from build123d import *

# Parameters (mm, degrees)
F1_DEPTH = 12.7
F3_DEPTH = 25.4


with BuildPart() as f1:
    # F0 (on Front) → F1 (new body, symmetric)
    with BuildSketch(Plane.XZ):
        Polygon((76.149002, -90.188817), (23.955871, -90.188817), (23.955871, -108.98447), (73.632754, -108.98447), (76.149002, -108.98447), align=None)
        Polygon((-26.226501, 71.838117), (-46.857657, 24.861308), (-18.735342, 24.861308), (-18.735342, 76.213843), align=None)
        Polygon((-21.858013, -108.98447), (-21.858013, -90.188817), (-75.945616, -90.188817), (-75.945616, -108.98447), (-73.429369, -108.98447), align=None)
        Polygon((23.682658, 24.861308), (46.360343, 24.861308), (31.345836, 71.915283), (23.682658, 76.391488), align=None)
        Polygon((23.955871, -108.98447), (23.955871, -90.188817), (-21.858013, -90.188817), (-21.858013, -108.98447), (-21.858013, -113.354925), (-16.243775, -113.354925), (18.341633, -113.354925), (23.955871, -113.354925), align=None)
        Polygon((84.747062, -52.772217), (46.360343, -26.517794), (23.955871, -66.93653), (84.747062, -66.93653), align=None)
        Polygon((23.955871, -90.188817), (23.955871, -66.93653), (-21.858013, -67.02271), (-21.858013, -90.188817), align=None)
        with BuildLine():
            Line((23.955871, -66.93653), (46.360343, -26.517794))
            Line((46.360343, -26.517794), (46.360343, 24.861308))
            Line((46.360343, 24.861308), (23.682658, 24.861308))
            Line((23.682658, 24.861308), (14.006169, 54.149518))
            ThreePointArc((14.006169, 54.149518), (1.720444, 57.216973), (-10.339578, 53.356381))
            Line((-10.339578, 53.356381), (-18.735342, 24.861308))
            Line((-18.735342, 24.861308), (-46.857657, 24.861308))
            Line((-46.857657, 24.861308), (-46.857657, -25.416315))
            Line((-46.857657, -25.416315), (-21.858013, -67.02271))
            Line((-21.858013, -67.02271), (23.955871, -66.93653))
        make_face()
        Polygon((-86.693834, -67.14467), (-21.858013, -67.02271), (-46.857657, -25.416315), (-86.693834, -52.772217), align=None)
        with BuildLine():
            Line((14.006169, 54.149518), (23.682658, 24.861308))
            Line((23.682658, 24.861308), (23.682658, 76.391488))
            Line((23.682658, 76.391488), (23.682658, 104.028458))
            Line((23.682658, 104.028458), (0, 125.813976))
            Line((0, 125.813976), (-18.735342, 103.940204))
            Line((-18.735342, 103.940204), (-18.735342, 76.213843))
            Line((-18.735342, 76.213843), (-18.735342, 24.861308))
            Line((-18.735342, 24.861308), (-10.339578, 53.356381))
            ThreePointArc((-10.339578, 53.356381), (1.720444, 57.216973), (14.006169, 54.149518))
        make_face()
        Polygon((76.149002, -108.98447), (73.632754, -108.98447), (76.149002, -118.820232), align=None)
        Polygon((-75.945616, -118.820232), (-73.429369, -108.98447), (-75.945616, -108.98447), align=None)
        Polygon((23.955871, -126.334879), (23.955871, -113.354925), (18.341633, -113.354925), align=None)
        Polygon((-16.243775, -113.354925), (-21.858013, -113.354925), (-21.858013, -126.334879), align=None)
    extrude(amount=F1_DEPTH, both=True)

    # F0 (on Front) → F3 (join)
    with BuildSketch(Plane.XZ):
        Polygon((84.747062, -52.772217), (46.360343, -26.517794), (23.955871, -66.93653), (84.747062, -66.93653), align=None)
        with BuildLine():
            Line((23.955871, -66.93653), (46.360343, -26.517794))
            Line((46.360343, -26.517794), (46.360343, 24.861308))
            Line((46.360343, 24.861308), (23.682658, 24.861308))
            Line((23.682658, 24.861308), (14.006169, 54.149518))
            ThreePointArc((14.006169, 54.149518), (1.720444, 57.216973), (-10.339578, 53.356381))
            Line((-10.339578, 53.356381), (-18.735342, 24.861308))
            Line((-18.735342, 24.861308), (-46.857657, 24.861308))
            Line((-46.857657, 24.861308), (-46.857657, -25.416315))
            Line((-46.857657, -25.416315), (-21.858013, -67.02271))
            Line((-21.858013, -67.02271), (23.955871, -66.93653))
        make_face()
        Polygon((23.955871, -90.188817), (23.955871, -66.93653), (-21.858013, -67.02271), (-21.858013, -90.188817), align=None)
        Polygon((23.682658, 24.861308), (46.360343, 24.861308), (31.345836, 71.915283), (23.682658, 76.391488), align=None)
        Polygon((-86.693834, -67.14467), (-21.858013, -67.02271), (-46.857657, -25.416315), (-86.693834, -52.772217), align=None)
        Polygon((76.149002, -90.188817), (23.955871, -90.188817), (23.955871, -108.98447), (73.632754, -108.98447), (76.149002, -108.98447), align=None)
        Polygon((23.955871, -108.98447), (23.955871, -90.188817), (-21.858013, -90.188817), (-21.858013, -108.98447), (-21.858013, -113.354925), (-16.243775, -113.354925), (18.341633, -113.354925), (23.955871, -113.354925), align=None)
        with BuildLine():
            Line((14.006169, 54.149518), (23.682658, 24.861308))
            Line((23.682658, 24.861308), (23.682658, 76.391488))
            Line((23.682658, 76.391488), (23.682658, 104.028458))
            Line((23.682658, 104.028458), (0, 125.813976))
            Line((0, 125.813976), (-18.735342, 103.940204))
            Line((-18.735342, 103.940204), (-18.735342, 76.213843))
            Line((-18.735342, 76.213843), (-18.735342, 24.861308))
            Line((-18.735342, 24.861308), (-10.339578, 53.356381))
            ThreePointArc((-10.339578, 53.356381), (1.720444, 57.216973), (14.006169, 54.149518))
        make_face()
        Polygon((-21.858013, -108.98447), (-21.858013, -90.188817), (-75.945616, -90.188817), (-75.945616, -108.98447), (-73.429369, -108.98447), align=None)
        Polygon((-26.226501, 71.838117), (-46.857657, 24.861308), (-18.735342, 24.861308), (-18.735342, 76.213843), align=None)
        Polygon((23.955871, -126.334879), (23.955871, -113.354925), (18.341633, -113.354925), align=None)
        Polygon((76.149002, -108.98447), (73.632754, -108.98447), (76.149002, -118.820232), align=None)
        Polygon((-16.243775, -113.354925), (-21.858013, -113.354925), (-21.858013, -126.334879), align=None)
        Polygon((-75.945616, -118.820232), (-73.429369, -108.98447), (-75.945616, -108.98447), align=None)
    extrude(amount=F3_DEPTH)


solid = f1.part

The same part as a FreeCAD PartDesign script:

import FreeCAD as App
import Part
import Sketcher
Q = App.Units.Quantity

doc = App.newDocument("Part")
params = doc.addObject("Spreadsheet::Sheet", "Params")
for row, (alias, value) in enumerate([
    ("pad1_length", "1 in"),
    ("pad2_length", "1 in"),
], start=1):
    params.set(f"A{row}", alias)
    params.set(f"B{row}", "=" + value)
    params.setAlias(f"B{row}", alias)

body = doc.addObject("PartDesign::Body", "Body")

sketch1 = body.newObject("Sketcher::SketchObject", "Sketch")
sketch1.AttachmentSupport = (doc.getObject("XZ_Plane"), [""])
sketch1.MapMode = "FlatFace"
sketch1.addGeometry(Part.LineSegment(App.Vector(76, -90, 0), App.Vector(24, -90, 0)), False)
sketch1.addGeometry(Part.LineSegment(App.Vector(24, -90, 0), App.Vector(24, -67, 0)), False)
sketch1.addGeometry(Part.LineSegment(App.Vector(24, -67, 0), App.Vector(85, -67, 0)), False)
sketch1.addGeometry(Part.LineSegment(App.Vector(85, -67, 0), App.Vector(85, -53, 0)), False)
sketch1.addGeometry(Part.LineSegment(App.Vector(85, -53, 0), App.Vector(46, -27, 0)), False)
sketch1.addGeometry(Part.LineSegment(App.Vector(46, -27, 0), App.Vector(46, 25, 0)), False)
sketch1.addGeometry(Part.LineSegment(App.Vector(46, 25, 0), App.Vector(31, 72, 0)), False)
sketch1.addGeometry(Part.LineSegment(App.Vector(31, 72, 0), App.Vector(24, 76, 0)), False)
sketch1.addGeometry(Part.LineSegment(App.Vector(24, 76, 0), App.Vector(24, 104, 0)), False)
sketch1.addGeometry(Part.LineSegment(App.Vector(24, 104, 0), App.Vector(0, 126, 0)), False)
sketch1.addGeometry(Part.LineSegment(App.Vector(0, 126, 0), App.Vector(-19, 104, 0)), False)
sketch1.addGeometry(Part.LineSegment(App.Vector(-19, 104, 0), App.Vector(-19, 76, 0)), False)
sketch1.addGeometry(Part.LineSegment(App.Vector(-19, 76, 0), App.Vector(-26, 72, 0)), False)
sketch1.addGeometry(Part.LineSegment(App.Vector(-26, 72, 0), App.Vector(-47, 25, 0)), False)
sketch1.addGeometry(Part.LineSegment(App.Vector(-47, 25, 0), App.Vector(-47, -25, 0)), False)
sketch1.addGeometry(Part.LineSegment(App.Vector(-47, -25, 0), App.Vector(-87, -53, 0)), False)
sketch1.addGeometry(Part.LineSegment(App.Vector(-87, -53, 0), App.Vector(-87, -67, 0)), False)
sketch1.addGeometry(Part.LineSegment(App.Vector(-87, -67, 0), App.Vector(-22, -67, 0)), False)
sketch1.addGeometry(Part.LineSegment(App.Vector(-22, -67, 0), App.Vector(-22, -90, 0)), False)
sketch1.addGeometry(Part.LineSegment(App.Vector(-22, -90, 0), App.Vector(-76, -90, 0)), False)
sketch1.addGeometry(Part.LineSegment(App.Vector(-76, -90, 0), App.Vector(-76, -119, 0)), False)
sketch1.addGeometry(Part.LineSegment(App.Vector(-76, -119, 0), App.Vector(-73, -109, 0)), False)
sketch1.addGeometry(Part.LineSegment(App.Vector(-73, -109, 0), App.Vector(-22, -109, 0)), False)
sketch1.addGeometry(Part.LineSegment(App.Vector(-22, -109, 0), App.Vector(-22, -126, 0)), False)
sketch1.addGeometry(Part.LineSegment(App.Vector(-22, -126, 0), App.Vector(-16, -113, 0)), False)
sketch1.addGeometry(Part.LineSegment(App.Vector(-16, -113, 0), App.Vector(18, -113, 0)), False)
sketch1.addGeometry(Part.LineSegment(App.Vector(18, -113, 0), App.Vector(24, -126, 0)), False)
sketch1.addGeometry(Part.LineSegment(App.Vector(24, -126, 0), App.Vector(24, -109, 0)), False)
sketch1.addGeometry(Part.LineSegment(App.Vector(24, -109, 0), App.Vector(74, -109, 0)), False)
sketch1.addGeometry(Part.LineSegment(App.Vector(74, -109, 0), App.Vector(76, -119, 0)), False)
sketch1.addGeometry(Part.LineSegment(App.Vector(76, -119, 0), App.Vector(76, -90, 0)), False)
sketch1.addConstraint(Sketcher.Constraint("Coincident", 0, 2, 1, 1))
sketch1.addConstraint(Sketcher.Constraint("Coincident", 1, 2, 2, 1))
sketch1.addConstraint(Sketcher.Constraint("Coincident", 2, 2, 3, 1))
sketch1.addConstraint(Sketcher.Constraint("Coincident", 3, 2, 4, 1))
sketch1.addConstraint(Sketcher.Constraint("Coincident", 4, 2, 5, 1))
sketch1.addConstraint(Sketcher.Constraint("Coincident", 5, 2, 6, 1))
sketch1.addConstraint(Sketcher.Constraint("Coincident", 6, 2, 7, 1))
sketch1.addConstraint(Sketcher.Constraint("Coincident", 7, 2, 8, 1))
sketch1.addConstraint(Sketcher.Constraint("Coincident", 8, 2, 9, 1))
sketch1.addConstraint(Sketcher.Constraint("Coincident", 9, 2, 10, 1))
sketch1.addConstraint(Sketcher.Constraint("Coincident", 10, 2, 11, 1))
sketch1.addConstraint(Sketcher.Constraint("Coincident", 11, 2, 12, 1))
sketch1.addConstraint(Sketcher.Constraint("Coincident", 12, 2, 13, 1))
sketch1.addConstraint(Sketcher.Constraint("Coincident", 13, 2, 14, 1))
sketch1.addConstraint(Sketcher.Constraint("Coincident", 14, 2, 15, 1))
sketch1.addConstraint(Sketcher.Constraint("Coincident", 15, 2, 16, 1))
sketch1.addConstraint(Sketcher.Constraint("Coincident", 16, 2, 17, 1))
sketch1.addConstraint(Sketcher.Constraint("Coincident", 17, 2, 18, 1))
sketch1.addConstraint(Sketcher.Constraint("Coincident", 18, 2, 19, 1))
sketch1.addConstraint(Sketcher.Constraint("Coincident", 19, 2, 20, 1))
sketch1.addConstraint(Sketcher.Constraint("Coincident", 20, 2, 21, 1))
sketch1.addConstraint(Sketcher.Constraint("Coincident", 21, 2, 22, 1))
sketch1.addConstraint(Sketcher.Constraint("Coincident", 22, 2, 23, 1))
sketch1.addConstraint(Sketcher.Constraint("Coincident", 23, 2, 24, 1))
sketch1.addConstraint(Sketcher.Constraint("Coincident", 24, 2, 25, 1))
sketch1.addConstraint(Sketcher.Constraint("Coincident", 25, 2, 26, 1))
sketch1.addConstraint(Sketcher.Constraint("Coincident", 26, 2, 27, 1))
sketch1.addConstraint(Sketcher.Constraint("Coincident", 27, 2, 28, 1))
sketch1.addConstraint(Sketcher.Constraint("Coincident", 28, 2, 29, 1))
sketch1.addConstraint(Sketcher.Constraint("Coincident", 29, 2, 30, 1))
sketch1.addConstraint(Sketcher.Constraint("Coincident", 30, 2, 0, 1))
sketch1.addConstraint(Sketcher.Constraint("Horizontal", 0))
sketch1.addConstraint(Sketcher.Constraint("Vertical", 1))
sketch1.addConstraint(Sketcher.Constraint("Horizontal", 2))
sketch1.addConstraint(Sketcher.Constraint("Vertical", 3))
sketch1.addConstraint(Sketcher.Constraint("Vertical", 5))
sketch1.addConstraint(Sketcher.Constraint("Vertical", 8))
sketch1.addConstraint(Sketcher.Constraint("Vertical", 11))
sketch1.addConstraint(Sketcher.Constraint("Vertical", 14))
sketch1.addConstraint(Sketcher.Constraint("Vertical", 16))
sketch1.addConstraint(Sketcher.Constraint("Vertical", 18))
sketch1.addConstraint(Sketcher.Constraint("Horizontal", 19))
sketch1.addConstraint(Sketcher.Constraint("Vertical", 20))
sketch1.addConstraint(Sketcher.Constraint("Horizontal", 22))
sketch1.addConstraint(Sketcher.Constraint("Vertical", 23))
sketch1.addConstraint(Sketcher.Constraint("Horizontal", 25))
sketch1.addConstraint(Sketcher.Constraint("Vertical", 27))
sketch1.addConstraint(Sketcher.Constraint("Horizontal", 28))
sketch1.addConstraint(Sketcher.Constraint("Vertical", 30))
sketch1.addConstraint(Sketcher.Constraint("PointOnObject", 9, 2, -2))
sketch1.addConstraint(Sketcher.Constraint("Horizontal", 5, 2, 13, 2))
sketch1.addConstraint(Sketcher.Constraint("Horizontal", 3, 2, 15, 2))
sketch1.addConstraint(Sketcher.Constraint("Horizontal", 0, 2, 18, 2))
sketch1.addConstraint(Sketcher.Constraint("Horizontal", 23, 2, 26, 2))
sketch1.addConstraint(Sketcher.Constraint("Horizontal", 22, 2, 27, 2))
sketch1.addConstraint(Sketcher.Constraint("Horizontal", 20, 2, 29, 2))
sketch1.addConstraint(Sketcher.Constraint("Vertical", 18, 2, 22, 2))
sketch1.addConstraint(Sketcher.Constraint("Vertical", 1, 2, 26, 2))
sketch1.addConstraint(Sketcher.Constraint("Equal", 24, 26))
sketch1.addConstraint(Sketcher.Constraint("Equal", 21, 29))
sketch1.addConstraint(Sketcher.Constraint("Angle", 4, Q("145.63 deg")))
sketch1.addConstraint(Sketcher.Constraint("Angle", 7, Q("149.710004 deg")))
sketch1.addConstraint(Sketcher.Constraint("Angle", 12, Q("-149.710001 deg")))
sketch1.addConstraint(Sketcher.Constraint("Angle", 13, Q("-113.709999 deg")))
sketch1.addConstraint(Sketcher.Constraint("Angle", 21, Q("75.650002 deg")))
sketch1.addConstraint(Sketcher.Constraint("Angle", 24, Q("66.610001 deg")))
sketch1.addConstraint(Sketcher.Constraint("DistanceX", 10, 2, 8, 2, Q("1.67 in")))
sketch1.addConstraint(Sketcher.Constraint("DistanceX", 14, 2, 4, 2, Q("3.67 in")))
sketch1.addConstraint(Sketcher.Constraint("DistanceX", 7, 2, 6, 2, Q("0.3016999 in")))
sketch1.addConstraint(Sketcher.Constraint("DistanceX", 0, 2, 0, 1, 52.193131))
sketch1.addConstraint(Sketcher.Constraint("DistanceX", 2, 1, 2, 2, 60.791191))
sketch1.addConstraint(Sketcher.Constraint("DistanceY", 8, 1, 8, 2, 27.63697))
sketch1.addConstraint(Sketcher.Constraint("DistanceY", 11, 2, 11, 1, 27.726361))
sketch1.addConstraint(Sketcher.Constraint("DistanceY", 23, 2, 23, 1, 17.350409))
sketch1.addConstraint(Sketcher.Constraint("DistanceX", 12, 2, -1, 1, 26.226501))
sketch1.addConstraint(Sketcher.Constraint("DistanceX", -1, 1, 29, 2, 76.149002))
sketch1.addConstraint(Sketcher.Constraint("DistanceY", 0, 2, 3, 2, 37.4166))
sketch1.addConstraint(Sketcher.Constraint("DistanceY", 3, 2, 6, 2, 124.6875))
sketch1.addConstraint(Sketcher.Constraint("DistanceY", 15, 2, 14, 2, 27.355902))
sketch1.addConstraint(Sketcher.Constraint("DistanceY", 21, 2, 16, 2, 41.8398))
sketch1.addConstraint(Sketcher.Constraint("Distance", 4, 46.506289))
sketch1.addConstraint(Sketcher.Constraint("Distance", 9, 32.17883))
sketch1.addConstraint(Sketcher.Constraint("Distance", 12, 8.675508))
sketch1.addConstraint(Sketcher.Constraint("DistanceX", 19, 2, 19, 1, 54.087603))
sketch1.addConstraint(Sketcher.Constraint("DistanceX", 22, 1, 22, 2, 51.571356))
sketch1.addConstraint(Sketcher.Constraint("DistanceX", 25, 1, 25, 2, 34.585408))
sketch1.addConstraint(Sketcher.Constraint("DistanceY", 1, 1, 1, 2, 23.252287))
sketch1.addConstraint(Sketcher.Constraint("DistanceY", 5, 1, 5, 2, 51.379102))
sketch1.addConstraint(Sketcher.Constraint("DistanceY", 16, 2, 16, 1, 14.372453))
sketch1.addConstraint(Sketcher.Constraint("DistanceY", 18, 2, 18, 1, 23.166107))
sketch1.addConstraint(Sketcher.Constraint("DistanceY", 1, 2, -1, 1, 66.93653))
sketch1.addConstraint(Sketcher.Constraint("DistanceX", 21, 2, -1, 1, 73.429369))
sketch1.addConstraint(Sketcher.Constraint("DistanceX", 16, 2, 17, 2, 64.835821))
pad1 = body.newObject("PartDesign::Pad", "Pad")
pad1.Profile = sketch1
pad1.setExpression("Length", "Params.pad1_length")
pad1.Midplane = True

sketch2 = body.newObject("Sketcher::SketchObject", "Sketch001")
sketch2.AttachmentSupport = (doc.getObject("XZ_Plane"), [""])
sketch2.MapMode = "FlatFace"
sketch2.addGeometry(Part.LineSegment(App.Vector(85, -53, 0), App.Vector(46, -27, 0)), False)
sketch2.addGeometry(Part.LineSegment(App.Vector(46, -27, 0), App.Vector(46, 25, 0)), False)
sketch2.addGeometry(Part.LineSegment(App.Vector(46, 25, 0), App.Vector(31, 72, 0)), False)
sketch2.addGeometry(Part.LineSegment(App.Vector(31, 72, 0), App.Vector(24, 76, 0)), False)
sketch2.addGeometry(Part.LineSegment(App.Vector(24, 76, 0), App.Vector(24, 104, 0)), False)
sketch2.addGeometry(Part.LineSegment(App.Vector(24, 104, 0), App.Vector(0, 126, 0)), False)
sketch2.addGeometry(Part.LineSegment(App.Vector(0, 126, 0), App.Vector(-19, 104, 0)), False)
sketch2.addGeometry(Part.LineSegment(App.Vector(-19, 104, 0), App.Vector(-19, 76, 0)), False)
sketch2.addGeometry(Part.LineSegment(App.Vector(-19, 76, 0), App.Vector(-26, 72, 0)), False)
sketch2.addGeometry(Part.LineSegment(App.Vector(-26, 72, 0), App.Vector(-47, 25, 0)), False)
sketch2.addGeometry(Part.LineSegment(App.Vector(-47, 25, 0), App.Vector(-47, -25, 0)), False)
sketch2.addGeometry(Part.LineSegment(App.Vector(-47, -25, 0), App.Vector(-87, -53, 0)), False)
sketch2.addGeometry(Part.LineSegment(App.Vector(-87, -53, 0), App.Vector(-87, -67, 0)), False)
sketch2.addGeometry(Part.LineSegment(App.Vector(-87, -67, 0), App.Vector(-22, -67, 0)), False)
sketch2.addGeometry(Part.LineSegment(App.Vector(-22, -67, 0), App.Vector(-22, -90, 0)), False)
sketch2.addGeometry(Part.LineSegment(App.Vector(-22, -90, 0), App.Vector(-76, -90, 0)), False)
sketch2.addGeometry(Part.LineSegment(App.Vector(-76, -90, 0), App.Vector(-76, -119, 0)), False)
sketch2.addGeometry(Part.LineSegment(App.Vector(-76, -119, 0), App.Vector(-73, -109, 0)), False)
sketch2.addGeometry(Part.LineSegment(App.Vector(-73, -109, 0), App.Vector(-22, -109, 0)), False)
sketch2.addGeometry(Part.LineSegment(App.Vector(-22, -109, 0), App.Vector(-22, -126, 0)), False)
sketch2.addGeometry(Part.LineSegment(App.Vector(-22, -126, 0), App.Vector(-16, -113, 0)), False)
sketch2.addGeometry(Part.LineSegment(App.Vector(-16, -113, 0), App.Vector(18, -113, 0)), False)
sketch2.addGeometry(Part.LineSegment(App.Vector(18, -113, 0), App.Vector(24, -126, 0)), False)
sketch2.addGeometry(Part.LineSegment(App.Vector(24, -126, 0), App.Vector(24, -109, 0)), False)
sketch2.addGeometry(Part.LineSegment(App.Vector(24, -109, 0), App.Vector(74, -109, 0)), False)
sketch2.addGeometry(Part.LineSegment(App.Vector(74, -109, 0), App.Vector(76, -119, 0)), False)
sketch2.addGeometry(Part.LineSegment(App.Vector(76, -119, 0), App.Vector(76, -90, 0)), False)
sketch2.addGeometry(Part.LineSegment(App.Vector(76, -90, 0), App.Vector(24, -90, 0)), False)
sketch2.addGeometry(Part.LineSegment(App.Vector(24, -90, 0), App.Vector(24, -67, 0)), False)
sketch2.addGeometry(Part.LineSegment(App.Vector(24, -67, 0), App.Vector(85, -67, 0)), False)
sketch2.addGeometry(Part.LineSegment(App.Vector(85, -67, 0), App.Vector(85, -53, 0)), False)
sketch2.addConstraint(Sketcher.Constraint("Coincident", 0, 2, 1, 1))
sketch2.addConstraint(Sketcher.Constraint("Coincident", 1, 2, 2, 1))
sketch2.addConstraint(Sketcher.Constraint("Coincident", 2, 2, 3, 1))
sketch2.addConstraint(Sketcher.Constraint("Coincident", 3, 2, 4, 1))
sketch2.addConstraint(Sketcher.Constraint("Coincident", 4, 2, 5, 1))
sketch2.addConstraint(Sketcher.Constraint("Coincident", 5, 2, 6, 1))
sketch2.addConstraint(Sketcher.Constraint("Coincident", 6, 2, 7, 1))
sketch2.addConstraint(Sketcher.Constraint("Coincident", 7, 2, 8, 1))
sketch2.addConstraint(Sketcher.Constraint("Coincident", 8, 2, 9, 1))
sketch2.addConstraint(Sketcher.Constraint("Coincident", 9, 2, 10, 1))
sketch2.addConstraint(Sketcher.Constraint("Coincident", 10, 2, 11, 1))
sketch2.addConstraint(Sketcher.Constraint("Coincident", 11, 2, 12, 1))
sketch2.addConstraint(Sketcher.Constraint("Coincident", 12, 2, 13, 1))
sketch2.addConstraint(Sketcher.Constraint("Coincident", 13, 2, 14, 1))
sketch2.addConstraint(Sketcher.Constraint("Coincident", 14, 2, 15, 1))
sketch2.addConstraint(Sketcher.Constraint("Coincident", 15, 2, 16, 1))
sketch2.addConstraint(Sketcher.Constraint("Coincident", 16, 2, 17, 1))
sketch2.addConstraint(Sketcher.Constraint("Coincident", 17, 2, 18, 1))
sketch2.addConstraint(Sketcher.Constraint("Coincident", 18, 2, 19, 1))
sketch2.addConstraint(Sketcher.Constraint("Coincident", 19, 2, 20, 1))
sketch2.addConstraint(Sketcher.Constraint("Coincident", 20, 2, 21, 1))
sketch2.addConstraint(Sketcher.Constraint("Coincident", 21, 2, 22, 1))
sketch2.addConstraint(Sketcher.Constraint("Coincident", 22, 2, 23, 1))
sketch2.addConstraint(Sketcher.Constraint("Coincident", 23, 2, 24, 1))
sketch2.addConstraint(Sketcher.Constraint("Coincident", 24, 2, 25, 1))
sketch2.addConstraint(Sketcher.Constraint("Coincident", 25, 2, 26, 1))
sketch2.addConstraint(Sketcher.Constraint("Coincident", 26, 2, 27, 1))
sketch2.addConstraint(Sketcher.Constraint("Coincident", 27, 2, 28, 1))
sketch2.addConstraint(Sketcher.Constraint("Coincident", 28, 2, 29, 1))
sketch2.addConstraint(Sketcher.Constraint("Coincident", 29, 2, 30, 1))
sketch2.addConstraint(Sketcher.Constraint("Coincident", 30, 2, 0, 1))
sketch2.addConstraint(Sketcher.Constraint("Vertical", 1))
sketch2.addConstraint(Sketcher.Constraint("Vertical", 4))
sketch2.addConstraint(Sketcher.Constraint("Vertical", 7))
sketch2.addConstraint(Sketcher.Constraint("Vertical", 10))
sketch2.addConstraint(Sketcher.Constraint("Vertical", 12))
sketch2.addConstraint(Sketcher.Constraint("Vertical", 14))
sketch2.addConstraint(Sketcher.Constraint("Horizontal", 15))
sketch2.addConstraint(Sketcher.Constraint("Vertical", 16))
sketch2.addConstraint(Sketcher.Constraint("Horizontal", 18))
sketch2.addConstraint(Sketcher.Constraint("Vertical", 19))
sketch2.addConstraint(Sketcher.Constraint("Horizontal", 21))
sketch2.addConstraint(Sketcher.Constraint("Vertical", 23))
sketch2.addConstraint(Sketcher.Constraint("Horizontal", 24))
sketch2.addConstraint(Sketcher.Constraint("Vertical", 26))
sketch2.addConstraint(Sketcher.Constraint("Horizontal", 27))
sketch2.addConstraint(Sketcher.Constraint("Vertical", 28))
sketch2.addConstraint(Sketcher.Constraint("Horizontal", 29))
sketch2.addConstraint(Sketcher.Constraint("Vertical", 30))
sketch2.addConstraint(Sketcher.Constraint("PointOnObject", 5, 2, -2))
sketch2.addConstraint(Sketcher.Constraint("Horizontal", 1, 2, 9, 2))
sketch2.addConstraint(Sketcher.Constraint("Horizontal", 19, 2, 22, 2))
sketch2.addConstraint(Sketcher.Constraint("Horizontal", 18, 2, 23, 2))
sketch2.addConstraint(Sketcher.Constraint("Horizontal", 16, 2, 25, 2))
sketch2.addConstraint(Sketcher.Constraint("Horizontal", 15, 2, 26, 2))
sketch2.addConstraint(Sketcher.Constraint("Horizontal", 11, 2, 30, 2))
sketch2.addConstraint(Sketcher.Constraint("Vertical", 14, 2, 18, 2))
sketch2.addConstraint(Sketcher.Constraint("Vertical", 23, 2, 27, 2))
sketch2.addConstraint(Sketcher.Constraint("Equal", 20, 22))
sketch2.addConstraint(Sketcher.Constraint("Equal", 17, 25))
sketch2.addConstraint(Sketcher.Constraint("Angle", 0, Q("145.63 deg")))
sketch2.addConstraint(Sketcher.Constraint("Angle", 3, Q("149.710004 deg")))
sketch2.addConstraint(Sketcher.Constraint("Angle", 8, Q("-149.710001 deg")))
sketch2.addConstraint(Sketcher.Constraint("Angle", 9, Q("-113.709999 deg")))
sketch2.addConstraint(Sketcher.Constraint("Angle", 17, Q("75.650002 deg")))
sketch2.addConstraint(Sketcher.Constraint("Angle", 20, Q("66.610001 deg")))
sketch2.addConstraint(Sketcher.Constraint("DistanceX", 6, 2, 4, 2, Q("1.67 in")))
sketch2.addConstraint(Sketcher.Constraint("DistanceX", 10, 2, 0, 2, Q("3.67 in")))
sketch2.addConstraint(Sketcher.Constraint("DistanceX", 3, 2, 2, 2, Q("0.3016999 in")))
sketch2.addConstraint(Sketcher.Constraint("DistanceX", 27, 2, 27, 1, 52.193131))
sketch2.addConstraint(Sketcher.Constraint("DistanceX", 29, 1, 29, 2, 60.791191))
sketch2.addConstraint(Sketcher.Constraint("DistanceY", 4, 1, 4, 2, 27.63697))
sketch2.addConstraint(Sketcher.Constraint("DistanceY", 7, 2, 7, 1, 27.726361))
sketch2.addConstraint(Sketcher.Constraint("DistanceY", 19, 2, 19, 1, 17.350409))
sketch2.addConstraint(Sketcher.Constraint("DistanceX", 8, 2, -1, 1, 26.226501))
sketch2.addConstraint(Sketcher.Constraint("DistanceX", -1, 1, 25, 2, 76.149002))
sketch2.addConstraint(Sketcher.Constraint("DistanceY", 11, 2, 10, 2, 27.355902))
sketch2.addConstraint(Sketcher.Constraint("DistanceY", 14, 2, 11, 2, 37.4166))
sketch2.addConstraint(Sketcher.Constraint("DistanceY", 17, 2, 12, 2, 41.8398))
sketch2.addConstraint(Sketcher.Constraint("Distance", 0, 46.506289))
sketch2.addConstraint(Sketcher.Constraint("Distance", 5, 32.17883))
sketch2.addConstraint(Sketcher.Constraint("Distance", 8, 8.675508))
sketch2.addConstraint(Sketcher.Constraint("DistanceX", 15, 2, 15, 1, 54.087603))
sketch2.addConstraint(Sketcher.Constraint("DistanceX", 18, 1, 18, 2, 51.571356))
sketch2.addConstraint(Sketcher.Constraint("DistanceX", 21, 1, 21, 2, 34.585408))
sketch2.addConstraint(Sketcher.Constraint("DistanceY", 1, 1, 1, 2, 51.379102))
sketch2.addConstraint(Sketcher.Constraint("DistanceY", 12, 2, 12, 1, 14.372453))
sketch2.addConstraint(Sketcher.Constraint("DistanceY", 14, 2, 14, 1, 23.166107))
sketch2.addConstraint(Sketcher.Constraint("DistanceY", 28, 1, 28, 2, 23.252287))
sketch2.addConstraint(Sketcher.Constraint("DistanceY", -1, 1, 1, 2, 24.861308))
sketch2.addConstraint(Sketcher.Constraint("DistanceY", -1, 1, 4, 2, 104.028458))
sketch2.addConstraint(Sketcher.Constraint("DistanceX", 17, 2, -1, 1, 73.429369))
sketch2.addConstraint(Sketcher.Constraint("DistanceX", 11, 2, 7, 2, 67.958492))
pad2 = body.newObject("PartDesign::Pad", "Pad001")
pad2.Profile = sketch2
pad2.setExpression("Length", "Params.pad2_length")

doc.recompute()
